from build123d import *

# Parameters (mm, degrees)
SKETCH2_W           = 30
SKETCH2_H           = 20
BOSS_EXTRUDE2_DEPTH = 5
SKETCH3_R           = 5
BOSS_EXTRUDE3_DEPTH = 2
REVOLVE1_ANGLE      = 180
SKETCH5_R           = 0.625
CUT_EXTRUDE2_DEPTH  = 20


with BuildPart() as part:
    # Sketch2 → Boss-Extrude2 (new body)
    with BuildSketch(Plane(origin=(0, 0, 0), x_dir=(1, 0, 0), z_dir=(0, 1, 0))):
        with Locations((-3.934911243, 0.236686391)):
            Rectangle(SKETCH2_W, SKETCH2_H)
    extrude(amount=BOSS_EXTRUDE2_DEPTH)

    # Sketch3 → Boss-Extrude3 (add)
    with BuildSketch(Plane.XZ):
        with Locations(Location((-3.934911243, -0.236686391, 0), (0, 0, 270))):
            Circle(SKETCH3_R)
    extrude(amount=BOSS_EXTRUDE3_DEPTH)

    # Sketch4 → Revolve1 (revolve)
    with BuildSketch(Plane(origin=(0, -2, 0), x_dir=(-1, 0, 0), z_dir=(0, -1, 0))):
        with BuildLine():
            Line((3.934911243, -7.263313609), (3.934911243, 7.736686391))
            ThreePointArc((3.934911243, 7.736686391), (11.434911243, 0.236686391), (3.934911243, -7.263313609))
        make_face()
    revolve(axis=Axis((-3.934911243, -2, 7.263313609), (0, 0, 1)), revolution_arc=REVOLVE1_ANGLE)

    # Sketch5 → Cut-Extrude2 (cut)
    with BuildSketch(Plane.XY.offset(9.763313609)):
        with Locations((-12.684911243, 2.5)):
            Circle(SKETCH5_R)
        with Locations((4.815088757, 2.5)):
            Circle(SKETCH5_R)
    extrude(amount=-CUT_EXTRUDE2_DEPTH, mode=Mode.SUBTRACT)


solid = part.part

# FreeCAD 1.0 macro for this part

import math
import FreeCAD as App
import Part
import Sketcher
Q = App.Units.Quantity


def add_polygon(sketch, points):
    """Adds a closed chain of lines whose ends are joined by coincident constraints."""
    first, n = sketch.GeometryCount, len(points)
    for a, b in zip(points, points[1:] + points[:1]):
        sketch.addGeometry(Part.LineSegment(App.Vector(*a, 0), App.Vector(*b, 0)), False)
    for i in range(n):
        sketch.addConstraint(Sketcher.Constraint("Coincident", first + i, 2, first + (i + 1) % n, 1))

doc = App.newDocument("Part")
body = doc.addObject("PartDesign::Body", "Body")

# Sketch on XZ plane
sketch1 = doc.addObject("Sketcher::SketchObject", "Sketch")
body.addObject(sketch1)
sketch1.AttachmentSupport = (doc.XZ_Plane, [""])
sketch1.MapMode = "FlatFace"
add_polygon(sketch1, [(-19, -10), (-19, 10), (11, 10), (11, -10)])  # lines 0-3
sketch1.addConstraint([
    Sketcher.Constraint("Vertical", 0),
    Sketcher.Constraint("Horizontal", 1),
    Sketcher.Constraint("Vertical", 2),
    Sketcher.Constraint("Horizontal", 3),
    Sketcher.Constraint("DistanceX", 1, 1, 1, 2, Q("30 mm")),
    Sketcher.Constraint("DistanceY", 0, 1, 0, 2, Q("20 mm")),
    Sketcher.Constraint("DistanceX", 0, 2, -1, 1, Q("18.934911 mm")),
    Sketcher.Constraint("DistanceY", -1, 1, 0, 2, Q("9.763314 mm")),
])
pad1 = doc.addObject("PartDesign::Pad", "Pad")
body.addObject(pad1)
pad1.Profile = sketch1
pad1.Length = 5
pad1.Reversed = True

# Sketch on XZ plane
sketch2 = doc.addObject("Sketcher::SketchObject", "Sketch001")
body.addObject(sketch2)
sketch2.AttachmentSupport = (doc.XZ_Plane, [""])
sketch2.MapMode = "FlatFace"
sketch2.addGeometry(Part.Circle(App.Vector(-4, 0, 0), App.Vector(0, 0, 1), 5), False)
sketch2.addConstraint([
    Sketcher.Constraint("Diameter", 0, Q("10 mm")),
    Sketcher.Constraint("DistanceX", 0, 3, -1, 1, Q("3.934911 mm")),
    Sketcher.Constraint("DistanceY", 0, 3, -1, 1, Q("0.236686 mm")),
])
pad2 = doc.addObject("PartDesign::Pad", "Pad001")
body.addObject(pad2)
pad2.Profile = sketch2
pad2.Length = 2

# Sketch on XZ plane
sketch3 = doc.addObject("Sketcher::SketchObject", "Sketch002")
body.addObject(sketch3)
sketch3.AttachmentSupport = (doc.XZ_Plane, [""])
sketch3.MapMode = "FlatFace"
sketch3.AttachmentOffset = App.Placement(App.Vector(0, 0, 2), App.Rotation())
sketch3.addGeometry([
    Part.LineSegment(App.Vector(-4, -8, 0), App.Vector(-4, 7, 0)),
    Part.ArcOfCircle(Part.Circle(App.Vector(-4, 0, 0), App.Vector(0, 0, 1), 8), math.radians(90), math.radians(270)),
], False)
sketch3.addGeometry(Part.LineSegment(App.Vector(-4, -8, 0), App.Vector(-4, 7, 0)), True)  # axis
sketch3.addConstraint([
    Sketcher.Constraint("Coincident", 0, 1, 1, 2),
    Sketcher.Constraint("Coincident", 1, 1, 0, 2),
    Sketcher.Constraint("Vertical", 0),
    Sketcher.Constraint("Vertical", 2),
    Sketcher.Constraint("Coincident", 2, 1, 0, 1),
    Sketcher.Constraint("Vertical", 1, 3, 0, 1),
    Sketcher.Constraint("Equal", 0, 2),
    Sketcher.Constraint("Radius", 1, Q("7.5 mm")),
    Sketcher.Constraint("DistanceX", 1, 3, -1, 1, Q("3.934911 mm")),
    Sketcher.Constraint("DistanceY", 1, 3, -1, 1, Q("0.236686 mm")),
])
revolution = doc.addObject("PartDesign::Revolution", "Revolution")
body.addObject(revolution)
revolution.Profile = sketch3
revolution.ReferenceAxis = (sketch3, ["Axis0"])
revolution.Angle = 180

# Sketch on XY plane
sketch4 = doc.addObject("Sketcher::SketchObject", "Sketch003")
body.addObject(sketch4)
sketch4.AttachmentSupport = (doc.XY_Plane, [""])
sketch4.MapMode = "FlatFace"
sketch4.AttachmentOffset = App.Placement(App.Vector(0, 0, 9.763314), App.Rotation())
sketch4.addGeometry([
    Part.Circle(App.Vector(-12.7, 2.5, 0), App.Vector(0, 0, 1), 0.6),
    Part.Circle(App.Vector(4.8, 2.5, 0), App.Vector(0, 0, 1), 0.6),
], False)
sketch4.addConstraint([
    Sketcher.Constraint("Equal", 0, 1),
    Sketcher.Constraint("Horizontal", 0, 3, 1, 3),
    Sketcher.Constraint("Diameter", 0, Q("1.25 mm")),
    Sketcher.Constraint("DistanceY", -1, 1, 0, 3, Q("2.5 mm")),
    Sketcher.Constraint("DistanceX", 0, 3, 1, 3, Q("17.5 mm")),
    Sketcher.Constraint("DistanceX", 0, 3, -1, 1, Q("12.684911 mm")),
])
pocket1 = doc.addObject("PartDesign::Pocket", "Pocket")
body.addObject(pocket1)
pocket1.Profile = sketch4
pocket1.Length = 20

doc.recompute()
